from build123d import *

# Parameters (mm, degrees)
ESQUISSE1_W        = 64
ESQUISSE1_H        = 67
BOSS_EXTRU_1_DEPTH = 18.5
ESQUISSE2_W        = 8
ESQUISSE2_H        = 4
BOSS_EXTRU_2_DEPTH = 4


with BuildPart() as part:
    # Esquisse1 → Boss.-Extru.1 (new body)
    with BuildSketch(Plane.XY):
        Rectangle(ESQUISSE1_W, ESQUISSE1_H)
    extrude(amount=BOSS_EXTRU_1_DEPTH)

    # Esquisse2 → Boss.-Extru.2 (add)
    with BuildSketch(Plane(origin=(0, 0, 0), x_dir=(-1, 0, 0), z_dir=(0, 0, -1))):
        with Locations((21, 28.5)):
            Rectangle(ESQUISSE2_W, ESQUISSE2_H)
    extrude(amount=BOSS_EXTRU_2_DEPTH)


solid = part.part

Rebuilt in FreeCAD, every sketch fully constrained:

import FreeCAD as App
import Part
import Sketcher

V = App.Vector


def add_polygon(sketch, points):
    """Adds a closed chain of lines whose ends are joined by coincident constraints."""
    first, n = sketch.GeometryCount, len(points)
    for a, b in zip(points, points[1:] + points[:1]):
        sketch.addGeometry(Part.LineSegment(App.Vector(*a, 0), App.Vector(*b, 0)), False)
    for i in range(n):
        sketch.addConstraint(Sketcher.Constraint("Coincident", first + i, 2, first + (i + 1) % n, 1))

doc = App.newDocument("Part")
params = doc.addObject("Spreadsheet::Sheet", "Params")
for row, (alias, value) in enumerate([
    ("sketch1_width", "64 mm"),
    ("sketch1_height", "67 mm"),
    ("pad1_length", "18.5 mm"),
    ("sketch2_width", "8 mm"),
    ("sketch2_height", "4 mm"),
    ("pad2_length", "4 mm"),
], start=1):
    params.set(f"A{row}", alias)
    params.set(f"B{row}", "=" + value)
    params.setAlias(f"B{row}", alias)

body = doc.addObject("PartDesign::Body", "Body")

sketch1 = body.newObject("Sketcher::SketchObject", "Sketch")
sketch1.AttachmentSupport = (doc.getObject("XY_Plane"), [""])
sketch1.MapMode = "FlatFace"
add_polygon(sketch1, [(-32, 34), (-32, -34), (32, -34), (32, 34)])
sketch1.addConstraint([
    Sketcher.Constraint("Vertical", 0),
    Sketcher.Constraint("Horizontal", 1),
    Sketcher.Constraint("Vertical", 2),
    Sketcher.Constraint("Horizontal", 3),
    Sketcher.Constraint("Symmetric", 0, 2, 2, 2, -1, 1),
    Sketcher.Constraint("DistanceX", 1, 1, 1, 2, 64.0),
    Sketcher.Constraint("DistanceY", 0, 2, 0, 1, 67.0),
])
sketch1.setExpression("Constraints[9]", "Params.sketch1_width")
sketch1.setExpression("Constraints[10]", "Params.sketch1_height")
pad1 = body.newObject("PartDesign::Pad", "Pad")
pad1.Profile = sketch1
pad1.setExpression("Length", "Params.pad1_length")

sketch2 = body.newObject("Sketcher::SketchObject", "Sketch001")
sketch2.AttachmentSupport = (doc.getObject("XY_Plane"), [""])
sketch2.MapMode = "FlatFace"
add_polygon(sketch2, [(-17, 30.5), (-17, 26.5), (-25, 26.5), (-25, 30.5)])
sketch2.addConstraint([
    Sketcher.Constraint("Vertical", 0),
    Sketcher.Constraint("Horizontal", 1),
    Sketcher.Constraint("Vertical", 2),
    Sketcher.Constraint("Horizontal", 3),
    Sketcher.Constraint("DistanceX", 1, 2, 1, 1, 8.0),
    Sketcher.Constraint("DistanceY", 0, 2, 0, 1, 4.0),
    Sketcher.Constraint("DistanceX", 0, 2, -1, 1, 17.0),
    Sketcher.Constraint("DistanceY", -1, 1, 0, 2, 26.5),
])
sketch2.setExpression("Constraints[8]", "Params.sketch2_width")
sketch2.setExpression("Constraints[9]", "Params.sketch2_height")
pad2 = body.newObject("PartDesign::Pad", "Pad001")
pad2.Profile = sketch2
pad2.setExpression("Length", "Params.pad2_length")
pad2.Reversed = True

doc.recompute()
